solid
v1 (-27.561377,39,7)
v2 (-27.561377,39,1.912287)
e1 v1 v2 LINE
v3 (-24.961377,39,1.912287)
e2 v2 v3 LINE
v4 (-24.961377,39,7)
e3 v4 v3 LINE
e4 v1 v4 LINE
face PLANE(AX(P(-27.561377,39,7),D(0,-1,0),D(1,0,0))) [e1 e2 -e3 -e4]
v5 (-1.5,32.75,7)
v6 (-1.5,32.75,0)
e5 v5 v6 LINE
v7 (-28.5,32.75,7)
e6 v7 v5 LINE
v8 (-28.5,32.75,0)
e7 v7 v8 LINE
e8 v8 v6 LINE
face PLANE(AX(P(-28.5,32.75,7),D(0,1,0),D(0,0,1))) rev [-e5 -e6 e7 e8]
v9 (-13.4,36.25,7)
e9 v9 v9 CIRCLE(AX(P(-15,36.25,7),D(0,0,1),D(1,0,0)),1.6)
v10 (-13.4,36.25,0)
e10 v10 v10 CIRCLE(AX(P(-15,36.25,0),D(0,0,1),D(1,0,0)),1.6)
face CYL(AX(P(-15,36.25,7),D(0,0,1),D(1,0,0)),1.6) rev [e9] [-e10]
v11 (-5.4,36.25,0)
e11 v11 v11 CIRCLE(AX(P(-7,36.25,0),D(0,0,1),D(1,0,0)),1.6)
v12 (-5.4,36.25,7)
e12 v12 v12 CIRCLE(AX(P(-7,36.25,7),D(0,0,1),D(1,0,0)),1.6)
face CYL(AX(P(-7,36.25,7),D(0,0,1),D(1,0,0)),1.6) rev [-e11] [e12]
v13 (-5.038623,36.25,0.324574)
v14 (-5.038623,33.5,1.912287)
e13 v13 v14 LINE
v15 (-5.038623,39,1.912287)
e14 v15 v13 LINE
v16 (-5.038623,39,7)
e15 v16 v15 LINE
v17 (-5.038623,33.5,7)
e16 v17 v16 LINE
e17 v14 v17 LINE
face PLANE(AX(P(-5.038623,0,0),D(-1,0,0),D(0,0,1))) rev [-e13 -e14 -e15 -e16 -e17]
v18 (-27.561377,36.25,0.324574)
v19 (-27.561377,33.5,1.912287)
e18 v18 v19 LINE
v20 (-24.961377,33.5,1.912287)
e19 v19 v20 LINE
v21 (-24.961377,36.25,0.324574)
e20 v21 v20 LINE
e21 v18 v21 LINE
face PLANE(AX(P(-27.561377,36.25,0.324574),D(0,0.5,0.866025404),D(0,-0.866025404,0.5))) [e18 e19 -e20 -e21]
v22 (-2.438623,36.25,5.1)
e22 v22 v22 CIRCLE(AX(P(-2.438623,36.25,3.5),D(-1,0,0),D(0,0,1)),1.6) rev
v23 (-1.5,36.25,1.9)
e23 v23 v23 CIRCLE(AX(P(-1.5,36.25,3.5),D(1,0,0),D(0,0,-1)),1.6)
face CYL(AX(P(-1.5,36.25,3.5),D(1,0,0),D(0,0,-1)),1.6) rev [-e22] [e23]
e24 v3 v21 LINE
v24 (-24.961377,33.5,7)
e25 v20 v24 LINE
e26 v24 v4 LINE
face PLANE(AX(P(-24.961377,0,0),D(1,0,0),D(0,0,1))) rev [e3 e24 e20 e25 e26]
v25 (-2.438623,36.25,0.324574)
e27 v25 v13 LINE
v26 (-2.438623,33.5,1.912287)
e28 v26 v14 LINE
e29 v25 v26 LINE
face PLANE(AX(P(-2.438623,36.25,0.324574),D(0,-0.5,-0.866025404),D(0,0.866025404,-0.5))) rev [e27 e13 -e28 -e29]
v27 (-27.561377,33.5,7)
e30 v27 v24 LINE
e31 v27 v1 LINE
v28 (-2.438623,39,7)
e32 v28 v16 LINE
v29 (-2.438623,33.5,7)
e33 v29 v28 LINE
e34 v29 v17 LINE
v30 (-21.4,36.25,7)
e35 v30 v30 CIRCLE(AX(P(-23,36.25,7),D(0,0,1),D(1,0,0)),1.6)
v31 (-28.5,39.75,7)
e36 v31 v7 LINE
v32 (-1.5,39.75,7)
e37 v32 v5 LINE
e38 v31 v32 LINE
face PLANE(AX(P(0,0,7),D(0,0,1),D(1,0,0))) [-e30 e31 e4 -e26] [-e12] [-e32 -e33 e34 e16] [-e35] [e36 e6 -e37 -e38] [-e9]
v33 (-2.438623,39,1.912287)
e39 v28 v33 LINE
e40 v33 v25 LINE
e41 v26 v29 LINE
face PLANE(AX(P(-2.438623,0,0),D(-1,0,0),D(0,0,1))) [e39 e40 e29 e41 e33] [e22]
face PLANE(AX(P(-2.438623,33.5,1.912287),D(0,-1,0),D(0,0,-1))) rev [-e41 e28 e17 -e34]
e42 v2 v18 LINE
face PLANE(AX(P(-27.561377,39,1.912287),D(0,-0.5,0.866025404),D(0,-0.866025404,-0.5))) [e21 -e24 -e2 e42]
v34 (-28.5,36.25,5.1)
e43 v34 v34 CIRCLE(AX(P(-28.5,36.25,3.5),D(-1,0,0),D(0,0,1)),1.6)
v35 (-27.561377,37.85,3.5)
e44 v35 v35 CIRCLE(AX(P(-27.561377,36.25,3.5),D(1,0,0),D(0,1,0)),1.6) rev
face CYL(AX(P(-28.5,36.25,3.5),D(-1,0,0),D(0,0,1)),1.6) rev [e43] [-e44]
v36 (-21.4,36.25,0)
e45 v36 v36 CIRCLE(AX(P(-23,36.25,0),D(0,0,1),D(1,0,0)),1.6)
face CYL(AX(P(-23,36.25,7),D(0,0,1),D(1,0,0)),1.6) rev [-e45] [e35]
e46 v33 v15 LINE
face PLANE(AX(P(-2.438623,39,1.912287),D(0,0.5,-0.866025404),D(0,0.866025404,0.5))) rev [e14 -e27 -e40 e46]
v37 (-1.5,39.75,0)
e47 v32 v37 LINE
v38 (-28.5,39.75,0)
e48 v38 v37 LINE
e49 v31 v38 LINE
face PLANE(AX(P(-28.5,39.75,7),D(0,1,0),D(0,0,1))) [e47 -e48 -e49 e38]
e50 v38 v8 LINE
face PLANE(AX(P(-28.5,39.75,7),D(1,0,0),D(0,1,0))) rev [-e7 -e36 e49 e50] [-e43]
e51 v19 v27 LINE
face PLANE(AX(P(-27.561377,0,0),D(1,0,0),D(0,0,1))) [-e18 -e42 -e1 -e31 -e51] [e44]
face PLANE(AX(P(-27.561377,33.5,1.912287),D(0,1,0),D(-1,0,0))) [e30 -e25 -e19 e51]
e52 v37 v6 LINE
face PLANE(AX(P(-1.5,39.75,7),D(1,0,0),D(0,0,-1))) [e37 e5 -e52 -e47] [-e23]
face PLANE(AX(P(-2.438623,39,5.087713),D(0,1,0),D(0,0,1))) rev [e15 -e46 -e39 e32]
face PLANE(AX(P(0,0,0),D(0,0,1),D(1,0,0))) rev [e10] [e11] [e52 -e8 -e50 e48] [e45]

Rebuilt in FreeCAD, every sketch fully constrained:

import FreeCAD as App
import Part
import Sketcher

V = App.Vector
Q = App.Units.Quantity

doc = App.newDocument("Part")
body = doc.addObject("PartDesign::Body", "Body")

sketch1 = doc.addObject("Sketcher::SketchObject", "Sketch")
body.addObject(sketch1)
sketch1.AttachmentSupport = (doc.XY_Plane, [""])
sketch1.MapMode = "FlatFace"
sketch1.addGeometry(Part.LineSegment(V(-28, 40, 0), V(-28, 33, 0)), False)
sketch1.addGeometry(Part.LineSegment(V(-28, 33, 0), V(-2, 33, 0)), False)
sketch1.addGeometry(Part.LineSegment(V(-2, 33, 0), V(-2, 40, 0)), False)
sketch1.addGeometry(Part.LineSegment(V(-2, 40, 0), V(-28, 40, 0)), False)
sketch1.addConstraint(Sketcher.Constraint("Coincident", 0, 2, 1, 1))
sketch1.addConstraint(Sketcher.Constraint("Coincident", 1, 2, 2, 1))
sketch1.addConstraint(Sketcher.Constraint("Coincident", 2, 2, 3, 1))
sketch1.addConstraint(Sketcher.Constraint("Coincident", 3, 2, 0, 1))
sketch1.addConstraint(Sketcher.Constraint("Vertical", 0))
sketch1.addConstraint(Sketcher.Constraint("Horizontal", 1))
sketch1.addConstraint(Sketcher.Constraint("Vertical", 2))
sketch1.addConstraint(Sketcher.Constraint("Horizontal", 3))
sketch1.addConstraint(Sketcher.Constraint("DistanceX", 1, 1, 1, 2, Q("27 mm")))
sketch1.addConstraint(Sketcher.Constraint("DistanceY", 0, 2, 0, 1, Q("7 mm")))
sketch1.addConstraint(Sketcher.Constraint("DistanceX", 0, 2, -1, 1, Q("28.5 mm")))
sketch1.addConstraint(Sketcher.Constraint("DistanceY", -1, 1, 0, 2, Q("32.75 mm")))
pad1 = doc.addObject("PartDesign::Pad", "Pad")
body.addObject(pad1)
pad1.Profile = sketch1
pad1.Length = 7

sketch2 = doc.addObject("Sketcher::SketchObject", "Sketch001")
body.addObject(sketch2)
sketch2.AttachmentSupport = (doc.XZ_Plane, [""])
sketch2.MapMode = "FlatFace"
sketch2.AttachmentOffset = App.Placement(V(0, 0, -36.25), App.Rotation())
sketch2.addGeometry(Part.LineSegment(V(-5.5, 3.5, 0), V(-1.5, 3.5, 0)), False)
sketch2.addGeometry(Part.LineSegment(V(-1.5, 3.5, 0), V(-1.5, 1.9, 0)), False)
sketch2.addGeometry(Part.LineSegment(V(-1.5, 1.9, 0), V(-4.5, 1.9, 0)), False)
sketch2.addGeometry(Part.LineSegment(V(-4.5, 1.9, 0), V(-5.5, 3.5, 0)), False)
sketch2.addGeometry(Part.LineSegment(V(-1.5, 3.5, 0), V(-5.5, 3.5, 0)), True)
sketch2.addConstraint(Sketcher.Constraint("Coincident", 0, 2, 1, 1))
sketch2.addConstraint(Sketcher.Constraint("Coincident", 1, 2, 2, 1))
sketch2.addConstraint(Sketcher.Constraint("Coincident", 2, 2, 3, 1))
sketch2.addConstraint(Sketcher.Constraint("Coincident", 3, 2, 0, 1))
sketch2.addConstraint(Sketcher.Constraint("Horizontal", 0))
sketch2.addConstraint(Sketcher.Constraint("Vertical", 1))
sketch2.addConstraint(Sketcher.Constraint("Horizontal", 2))
sketch2.addConstraint(Sketcher.Constraint("Horizontal", 4))
sketch2.addConstraint(Sketcher.Constraint("Coincident", 4, 1, 0, 2))
sketch2.addConstraint(Sketcher.Constraint("Equal", 0, 4))
sketch2.addConstraint(Sketcher.Constraint("DistanceX", 0, 1, 0, 2, Q("4 mm")))
sketch2.addConstraint(Sketcher.Constraint("Angle", 3, Q("121 deg")))
sketch2.addConstraint(Sketcher.Constraint("DistanceY", 1, 2, 1, 1, Q("1.6 mm")))
sketch2.addConstraint(Sketcher.Constraint("DistanceX", 0, 2, -1, 1, Q("1.5 mm")))
sketch2.addConstraint(Sketcher.Constraint("DistanceY", -1, 1, 0, 2, Q("3.5 mm")))
groove = doc.addObject("PartDesign::Groove", "Groove")
body.addObject(groove)
groove.Profile = sketch2
groove.ReferenceAxis = (sketch2, ["Axis0"])
groove.Angle = 360
doc.recompute()

linearpattern = doc.addObject("PartDesign::LinearPattern", "LinearPattern")
body.addObject(linearpattern)
linearpattern.Originals = [groove]
linearpattern.Direction = (doc.Z_Axis, [""])
linearpattern.Mode = "offset"
linearpattern.Offset = 48.812875
linearpattern.Occurrences = 2
linearpattern.Reversed = True
body.Tip = linearpattern

sketch3 = doc.addObject("Sketcher::SketchObject", "Sketch002")
body.addObject(sketch3)
sketch3.AttachmentSupport = (doc.YZ_Plane, [""])
sketch3.MapMode = "FlatFace"
sketch3.AttachmentOffset = App.Placement(V(0, 0, -4.538623), App.Rotation())
sketch3.addGeometry(Part.Circle(V(36.2, 3.5, 0), V(0, 0, 1), 1.6), False)
sketch3.addConstraint(Sketcher.Constraint("Diameter", 0, Q("3.2 mm")))
sketch3.addConstraint(Sketcher.Constraint("DistanceY", -1, 1, 0, 3, Q("3.5 mm")))
sketch3.addConstraint(Sketcher.Constraint("DistanceX", -1, 1, 0, 3, Q("36.25 mm")))
pad2 = doc.addObject("PartDesign::Pad", "Pad001")
body.addObject(pad2)
pad2.Profile = sketch3
pad2.Length = 3.4
pad2.Reversed = True
doc.recompute()

datumplane = doc.addObject("PartDesign::Plane", "DatumPlane")
body.addObject(datumplane)
datumplane.AttachmentSupport = (doc.YZ_Plane, [""])
datumplane.MapMode = "FlatFace"
datumplane.AttachmentOffset = App.Placement(V(0, 0, -15), App.Rotation())
mirrored = doc.addObject("PartDesign::Mirrored", "Mirrored")
body.addObject(mirrored)
mirrored.Originals = [groove, pad2]
mirrored.MirrorPlane = (datumplane, [""])
body.Tip = mirrored

sketch4 = doc.addObject("Sketcher::SketchObject", "Sketch003")
body.addObject(sketch4)
sketch4.AttachmentSupport = (doc.XZ_Plane, [""])
sketch4.MapMode = "FlatFace"
sketch4.AttachmentOffset = App.Placement(V(0, 0, -36.25), App.Rotation())
sketch4.addGeometry(Part.LineSegment(V(-28.5, -45.3, 0), V(-24.5, -45.3, 0)), False)
sketch4.addGeometry(Part.LineSegment(V(-24.5, -45.3, 0), V(-25.5, -46.9, 0)), False)
sketch4.addGeometry(Part.LineSegment(V(-25.5, -46.9, 0), V(-28.5, -46.9, 0)), False)
sketch4.addGeometry(Part.LineSegment(V(-28.5, -46.9, 0), V(-28.5, -45.3, 0)), False)
sketch4.addGeometry(Part.LineSegment(V(-24.5, -45.3, 0), V(-28.5, -45.3, 0)), True)
sketch4.addConstraint(Sketcher.Constraint("Coincident", 0, 2, 1, 1))
sketch4.addConstraint(Sketcher.Constraint("Coincident", 1, 2, 2, 1))
sketch4.addConstraint(Sketcher.Constraint("Coincident", 2, 2, 3, 1))
sketch4.addConstraint(Sketcher.Constraint("Coincident", 3, 2, 0, 1))
sketch4.addConstraint(Sketcher.Constraint("Horizontal", 0))
sketch4.addConstraint(Sketcher.Constraint("Horizontal", 2))
sketch4.addConstraint(Sketcher.Constraint("Vertical", 3))
sketch4.addConstraint(Sketcher.Constraint("Horizontal", 4))
sketch4.addConstraint(Sketcher.Constraint("Coincident", 4, 1, 0, 2))
sketch4.addConstraint(Sketcher.Constraint("Vertical", 2, 2, 4, 2))
sketch4.addConstraint(Sketcher.Constraint("DistanceX", 0, 1, 0, 2, Q("4 mm")))
sketch4.addConstraint(Sketcher.Constraint("Angle", 1, Q("-121 deg")))
sketch4.addConstraint(Sketcher.Constraint("DistanceY", 3, 1, 3, 2, Q("1.6 mm")))
sketch4.addConstraint(Sketcher.Constraint("DistanceX", 0, 2, -1, 1, Q("24.5 mm")))
sketch4.addConstraint(Sketcher.Constraint("DistanceY", 0, 2, -1, 1, Q("45.312875 mm")))
groove2 = doc.addObject("PartDesign::Groove", "Groove001")
body.addObject(groove2)
groove2.Profile = sketch4
groove2.ReferenceAxis = (sketch4, ["Axis0"])
groove2.Angle = 360

sketch5 = doc.addObject("Sketcher::SketchObject", "Sketch004")
body.addObject(sketch5)
sketch5.AttachmentSupport = (doc.XY_Plane, [""])
sketch5.MapMode = "FlatFace"
sketch5.AttachmentOffset = App.Placement(V(0, 0, 7), App.Rotation())
sketch5.addGeometry(Part.Circle(V(-7, 36.2, 0), V(0, 0, 1), 1.6), False)
sketch5.addGeometry(Part.Circle(V(-15, 36.2, 0), V(0, 0, 1), 1.6), False)
sketch5.addGeometry(Part.Circle(V(-23, 36.2, 0), V(0, 0, 1), 1.6), False)
sketch5.addConstraint(Sketcher.Constraint("Equal", 0, 1))
sketch5.addConstraint(Sketcher.Constraint("Equal", 1, 2))
sketch5.addConstraint(Sketcher.Constraint("Horizontal", 0, 3, 1, 3))
sketch5.addConstraint(Sketcher.Constraint("Horizontal", 1, 3, 2, 3))
sketch5.addConstraint(Sketcher.Constraint("Diameter", 0, Q("3.2 mm")))
sketch5.addConstraint(Sketcher.Constraint("DistanceX", 0, 3, -1, 1, Q("7 mm")))
sketch5.addConstraint(Sketcher.Constraint("DistanceX", 1, 3, -1, 1, Q("15 mm")))
sketch5.addConstraint(Sketcher.Constraint("DistanceX", 2, 3, -1, 1, Q("23 mm")))
sketch5.addConstraint(Sketcher.Constraint("DistanceY", -1, 1, 0, 3, Q("36.25 mm")))
doc.recompute()
hole = doc.addObject("PartDesign::Hole", "Hole")
body.addObject(hole)
hole.Profile = sketch5
hole.ThreadType = "None"
hole.Diameter = 3.2
hole.DepthType = "ThroughAll"

sketch6 = doc.addObject("Sketcher::SketchObject", "Sketch005")
body.addObject(sketch6)
sketch6.AttachmentSupport = (doc.YZ_Plane, [""])
sketch6.MapMode = "FlatFace"
sketch6.AttachmentOffset = App.Placement(V(0, 0, -2.438623), App.Rotation())
sketch6.addGeometry(Part.LineSegment(V(36.2, 0.3, 0), V(33.5, 1.9, 0)), False)
sketch6.addGeometry(Part.LineSegment(V(33.5, 1.9, 0), V(33.5, 7, 0)), False)
sketch6.addGeometry(Part.LineSegment(V(33.5, 7, 0), V(39, 7, 0)), False)
sketch6.addGeometry(Part.LineSegment(V(39, 7, 0), V(39, 1.9, 0)), False)
sketch6.addGeometry(Part.LineSegment(V(39, 1.9, 0), V(36.2, 0.3, 0)), False)
sketch6.addConstraint(Sketcher.Constraint("Coincident", 0, 2, 1, 1))
sketch6.addConstraint(Sketcher.Constraint("Coincident", 1, 2, 2, 1))
sketch6.addConstraint(Sketcher.Constraint("Coincident", 2, 2, 3, 1))
sketch6.addConstraint(Sketcher.Constraint("Coincident", 3, 2, 4, 1))
sketch6.addConstraint(Sketcher.Constraint("Coincident", 4, 2, 0, 1))
sketch6.addConstraint(Sketcher.Constraint("Vertical", 1))
sketch6.addConstraint(Sketcher.Constraint("Horizontal", 2))
sketch6.addConstraint(Sketcher.Constraint("Vertical", 3))
sketch6.addConstraint(Sketcher.Constraint("Horizontal", 0, 2, 3, 2))
sketch6.addConstraint(Sketcher.Constraint("Equal", 0, 4))
sketch6.addConstraint(Sketcher.Constraint("Angle", 0, Q("150 deg")))
sketch6.addConstraint(Sketcher.Constraint("DistanceX", 2, 1, 2, 2, Q("5.5 mm")))
sketch6.addConstraint(Sketcher.Constraint("DistanceY", -1, 1, 1, 2, Q("7 mm")))
sketch6.addConstraint(Sketcher.Constraint("DistanceX", -1, 1, 2, 2, Q("39 mm")))
sketch6.addConstraint(Sketcher.Constraint("DistanceY", 1, 1, 1, 2, Q("5.087713 mm")))
pocket1 = doc.addObject("PartDesign::Pocket", "Pocket")
body.addObject(pocket1)
pocket1.Profile = sketch6
pocket1.Length = 2.6
doc.recompute()

datumplane2 = doc.addObject("PartDesign::Plane", "DatumPlane001")
body.addObject(datumplane2)
datumplane2.AttachmentSupport = (doc.YZ_Plane, [""])
datumplane2.MapMode = "FlatFace"
datumplane2.AttachmentOffset = App.Placement(V(0, 0, -15), App.Rotation())
mirrored2 = doc.addObject("PartDesign::Mirrored", "Mirrored001")
body.addObject(mirrored2)
mirrored2.Originals = [pocket1]
mirrored2.MirrorPlane = (datumplane2, [""])
body.Tip = mirrored2

doc.recompute()
